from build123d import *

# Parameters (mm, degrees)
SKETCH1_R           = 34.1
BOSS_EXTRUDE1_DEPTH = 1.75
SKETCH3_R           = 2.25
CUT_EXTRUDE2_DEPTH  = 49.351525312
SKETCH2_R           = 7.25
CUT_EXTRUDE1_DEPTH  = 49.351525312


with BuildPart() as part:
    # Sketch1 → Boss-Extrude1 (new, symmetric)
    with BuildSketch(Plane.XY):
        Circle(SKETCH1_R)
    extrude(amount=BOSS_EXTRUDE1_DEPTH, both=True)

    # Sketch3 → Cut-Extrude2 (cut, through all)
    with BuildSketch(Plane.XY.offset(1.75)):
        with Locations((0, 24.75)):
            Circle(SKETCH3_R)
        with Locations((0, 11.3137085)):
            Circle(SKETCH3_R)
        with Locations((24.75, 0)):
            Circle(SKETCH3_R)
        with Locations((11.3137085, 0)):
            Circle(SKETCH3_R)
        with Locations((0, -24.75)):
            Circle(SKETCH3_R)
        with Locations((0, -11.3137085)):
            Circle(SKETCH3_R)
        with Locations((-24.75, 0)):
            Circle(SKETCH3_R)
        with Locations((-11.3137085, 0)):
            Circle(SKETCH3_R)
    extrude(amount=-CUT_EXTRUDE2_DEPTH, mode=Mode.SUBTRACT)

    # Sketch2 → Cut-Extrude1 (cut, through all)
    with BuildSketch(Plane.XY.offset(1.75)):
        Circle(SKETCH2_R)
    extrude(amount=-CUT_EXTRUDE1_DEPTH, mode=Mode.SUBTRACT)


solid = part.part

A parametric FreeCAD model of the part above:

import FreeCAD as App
import Part
import Sketcher
Q = App.Units.Quantity

doc = App.newDocument("Part")
body = doc.addObject("PartDesign::Body", "Body")

# Sketch on XY plane
sketch1 = doc.addObject("Sketcher::SketchObject", "Sketch")
body.addObject(sketch1)
sketch1.AttachmentSupport = (doc.XY_Plane, [""])
sketch1.MapMode = "FlatFace"
sketch1.addGeometry(Part.Circle(App.Vector(0, 0, 0), App.Vector(0, 0, 1), 34.1), False)
sketch1.addConstraint(Sketcher.Constraint("Coincident", 0, 3, -1, 1))
sketch1.addConstraint(Sketcher.Constraint("Diameter", 0, Q("68.2 mm")))
pad1 = doc.addObject("PartDesign::Pad", "Pad")
body.addObject(pad1)
pad1.Profile = sketch1
pad1.Length = 3.5
pad1.Midplane = True

# Sketch on XY plane
sketch2 = doc.addObject("Sketcher::SketchObject", "Sketch001")
body.addObject(sketch2)
sketch2.AttachmentSupport = (doc.XY_Plane, [""])
sketch2.MapMode = "FlatFace"
sketch2.AttachmentOffset = App.Placement(App.Vector(0, 0, 1.75), App.Rotation())
sketch2.addGeometry(Part.Circle(App.Vector(0, 24.75, 0), App.Vector(0, 0, 1), 2.25), False)
sketch2.addGeometry(Part.Circle(App.Vector(0, 11.313709, 0), App.Vector(0, 0, 1), 2.25), False)
sketch2.addGeometry(Part.Circle(App.Vector(24.75, 0, 0), App.Vector(0, 0, 1), 2.25), False)
sketch2.addGeometry(Part.Circle(App.Vector(11.313709, 0, 0), App.Vector(0, 0, 1), 2.25), False)
sketch2.addGeometry(Part.Circle(App.Vector(0, -24.75, 0), App.Vector(0, 0, 1), 2.25), False)
sketch2.addGeometry(Part.Circle(App.Vector(0, -11.313709, 0), App.Vector(0, 0, 1), 2.25), False)
sketch2.addGeometry(Part.Circle(App.Vector(-24.75, 0, 0), App.Vector(0, 0, 1), 2.25), False)
sketch2.addGeometry(Part.Circle(App.Vector(-11.313709, 0, 0), App.Vector(0, 0, 1), 2.25), False)
sketch2.addConstraint(Sketcher.Constraint("Equal", 0, 1))
sketch2.addConstraint(Sketcher.Constraint("Equal", 1, 2))
sketch2.addConstraint(Sketcher.Constraint("Equal", 2, 3))
sketch2.addConstraint(Sketcher.Constraint("Equal", 3, 4))
sketch2.addConstraint(Sketcher.Constraint("Equal", 4, 5))
sketch2.addConstraint(Sketcher.Constraint("Equal", 5, 6))
sketch2.addConstraint(Sketcher.Constraint("Equal", 6, 7))
sketch2.addConstraint(Sketcher.Constraint("Symmetric", 0, 3, 4, 3, -1, 1))
sketch2.addConstraint(Sketcher.Constraint("Symmetric", 1, 3, 5, 3, -1, 1))
sketch2.addConstraint(Sketcher.Constraint("Symmetric", 2, 3, 6, 3, -1, 1))
sketch2.addConstraint(Sketcher.Constraint("Symmetric", 3, 3, 7, 3, -1, 1))
sketch2.addConstraint(Sketcher.Constraint("PointOnObject", 0, 3, -2))
sketch2.addConstraint(Sketcher.Constraint("PointOnObject", 1, 3, -2))
sketch2.addConstraint(Sketcher.Constraint("PointOnObject", 2, 3, -1))
sketch2.addConstraint(Sketcher.Constraint("PointOnObject", 3, 3, -1))
sketch2.addConstraint(Sketcher.Constraint("Diameter", 0, Q("4.5 mm")))
sketch2.addConstraint(Sketcher.Constraint("DistanceY", 4, 3, 0, 3, Q("49.5 mm")))
sketch2.addConstraint(Sketcher.Constraint("DistanceX", -1, 1, 2, 3, Q("24.75 mm")))
sketch2.addConstraint(Sketcher.Constraint("DistanceY", -1, 1, 1, 3, Q("11.313709 mm")))
sketch2.addConstraint(Sketcher.Constraint("DistanceX", -1, 1, 3, 3, Q("11.313709 mm")))
pocket1 = doc.addObject("PartDesign::Pocket", "Pocket")
body.addObject(pocket1)
pocket1.Profile = sketch2
pocket1.Type = "ThroughAll"

# Sketch on XY plane
sketch3 = doc.addObject("Sketcher::SketchObject", "Sketch002")
body.addObject(sketch3)
sketch3.AttachmentSupport = (doc.XY_Plane, [""])
sketch3.MapMode = "FlatFace"
sketch3.AttachmentOffset = App.Placement(App.Vector(0, 0, 1.75), App.Rotation())
sketch3.addGeometry(Part.Circle(App.Vector(0, 0, 0), App.Vector(0, 0, 1), 7.25), False)
sketch3.addConstraint(Sketcher.Constraint("Coincident", 0, 3, -1, 1))
sketch3.addConstraint(Sketcher.Constraint("Diameter", 0, Q("14.5 mm")))
pocket2 = doc.addObject("PartDesign::Pocket", "Pocket001")
body.addObject(pocket2)
pocket2.Profile = sketch3
pocket2.Type = "ThroughAll"

doc.recompute()
